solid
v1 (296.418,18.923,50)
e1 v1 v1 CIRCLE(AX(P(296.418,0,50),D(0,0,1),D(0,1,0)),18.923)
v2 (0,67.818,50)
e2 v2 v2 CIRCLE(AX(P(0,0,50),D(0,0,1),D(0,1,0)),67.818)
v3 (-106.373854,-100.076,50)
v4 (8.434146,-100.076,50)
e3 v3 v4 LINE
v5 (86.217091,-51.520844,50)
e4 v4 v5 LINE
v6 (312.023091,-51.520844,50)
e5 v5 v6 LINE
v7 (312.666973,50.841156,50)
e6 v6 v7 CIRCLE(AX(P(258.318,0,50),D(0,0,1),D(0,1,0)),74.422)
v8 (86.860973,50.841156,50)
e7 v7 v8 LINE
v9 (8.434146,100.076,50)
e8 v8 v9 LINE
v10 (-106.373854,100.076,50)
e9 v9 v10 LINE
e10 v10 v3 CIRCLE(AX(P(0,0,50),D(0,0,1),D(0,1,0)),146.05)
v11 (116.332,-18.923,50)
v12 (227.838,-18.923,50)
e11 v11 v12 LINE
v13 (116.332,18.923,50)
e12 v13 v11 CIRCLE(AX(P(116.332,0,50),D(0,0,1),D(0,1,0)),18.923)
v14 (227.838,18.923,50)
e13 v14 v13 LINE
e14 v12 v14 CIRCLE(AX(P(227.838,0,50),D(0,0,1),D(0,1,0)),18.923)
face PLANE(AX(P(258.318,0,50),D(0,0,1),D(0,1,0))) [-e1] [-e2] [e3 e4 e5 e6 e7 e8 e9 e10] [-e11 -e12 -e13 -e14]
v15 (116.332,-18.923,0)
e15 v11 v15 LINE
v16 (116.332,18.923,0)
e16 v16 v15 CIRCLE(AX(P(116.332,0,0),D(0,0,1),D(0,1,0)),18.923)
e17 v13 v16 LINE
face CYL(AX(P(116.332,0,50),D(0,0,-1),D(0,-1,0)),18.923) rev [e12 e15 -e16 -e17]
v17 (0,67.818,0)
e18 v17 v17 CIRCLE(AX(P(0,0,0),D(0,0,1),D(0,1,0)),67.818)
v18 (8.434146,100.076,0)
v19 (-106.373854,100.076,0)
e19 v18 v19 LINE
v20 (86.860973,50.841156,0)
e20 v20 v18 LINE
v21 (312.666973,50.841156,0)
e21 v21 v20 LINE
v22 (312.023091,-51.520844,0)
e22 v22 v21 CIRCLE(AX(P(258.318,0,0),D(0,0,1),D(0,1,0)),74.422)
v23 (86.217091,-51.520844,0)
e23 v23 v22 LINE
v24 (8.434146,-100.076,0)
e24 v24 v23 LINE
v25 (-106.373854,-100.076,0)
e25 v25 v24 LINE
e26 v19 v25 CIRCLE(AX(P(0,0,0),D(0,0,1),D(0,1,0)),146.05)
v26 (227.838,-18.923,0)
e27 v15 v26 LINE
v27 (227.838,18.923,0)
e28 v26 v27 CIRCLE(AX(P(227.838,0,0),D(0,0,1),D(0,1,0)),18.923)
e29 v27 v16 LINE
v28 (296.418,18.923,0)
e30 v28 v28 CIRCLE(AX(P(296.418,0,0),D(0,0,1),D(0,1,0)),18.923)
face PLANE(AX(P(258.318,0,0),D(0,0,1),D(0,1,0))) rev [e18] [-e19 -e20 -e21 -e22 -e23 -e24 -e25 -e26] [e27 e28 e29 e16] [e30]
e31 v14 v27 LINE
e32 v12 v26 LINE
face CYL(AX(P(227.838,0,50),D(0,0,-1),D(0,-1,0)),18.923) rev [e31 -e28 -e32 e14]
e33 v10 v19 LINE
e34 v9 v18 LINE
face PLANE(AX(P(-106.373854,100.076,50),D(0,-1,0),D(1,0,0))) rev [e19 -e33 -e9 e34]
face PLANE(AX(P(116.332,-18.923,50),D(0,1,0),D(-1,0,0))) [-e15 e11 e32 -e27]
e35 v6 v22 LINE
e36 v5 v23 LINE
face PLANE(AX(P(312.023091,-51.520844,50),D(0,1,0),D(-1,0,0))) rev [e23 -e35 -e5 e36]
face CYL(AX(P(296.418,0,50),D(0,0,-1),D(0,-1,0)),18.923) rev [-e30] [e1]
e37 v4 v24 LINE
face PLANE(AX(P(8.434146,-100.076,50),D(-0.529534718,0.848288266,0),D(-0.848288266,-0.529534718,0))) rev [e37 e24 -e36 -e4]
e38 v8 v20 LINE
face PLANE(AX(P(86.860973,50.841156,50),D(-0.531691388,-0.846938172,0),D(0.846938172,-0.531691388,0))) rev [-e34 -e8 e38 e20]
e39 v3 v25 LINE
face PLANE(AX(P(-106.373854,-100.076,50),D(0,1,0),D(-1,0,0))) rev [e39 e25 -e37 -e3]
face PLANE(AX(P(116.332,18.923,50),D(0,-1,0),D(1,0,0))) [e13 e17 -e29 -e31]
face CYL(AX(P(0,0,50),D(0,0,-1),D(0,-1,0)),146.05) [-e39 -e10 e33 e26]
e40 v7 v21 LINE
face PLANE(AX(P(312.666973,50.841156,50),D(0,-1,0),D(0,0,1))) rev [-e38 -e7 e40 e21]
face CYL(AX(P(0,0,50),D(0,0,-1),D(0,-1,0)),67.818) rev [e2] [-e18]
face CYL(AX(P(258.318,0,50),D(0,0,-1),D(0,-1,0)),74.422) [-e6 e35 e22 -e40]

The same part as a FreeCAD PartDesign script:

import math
import FreeCAD as App
import Part
import Sketcher

V = App.Vector
Q = App.Units.Quantity

doc = App.newDocument("Part")
body = doc.addObject("PartDesign::Body", "Body")

sketch1 = body.newObject("Sketcher::SketchObject", "Sketch")
sketch1.AttachmentSupport = (doc.getObject("XY_Plane"), [""])
sketch1.MapMode = "FlatFace"
sketch1.addGeometry([
    Part.LineSegment(V(51, -87, 0), V(100, -8, 0)),
    Part.LineSegment(V(100, -8, 0), V(100, 106, 0)),
    Part.ArcOfCircle(Part.Circle(V(0, 0, 0), V(0, 0, 1), 146), math.radians(47), math.radians(133)),
    Part.LineSegment(V(-100, 106, 0), V(-100, -8, 0)),
    Part.LineSegment(V(-100, -8, 0), V(-52, -86, 0)),
    Part.LineSegment(V(-52, -86, 0), V(-52, -312, 0)),
    Part.ArcOfCircle(Part.Circle(V(0, -258, 0), V(0, 0, 1), 74), math.radians(-134), math.radians(-47)),
    Part.LineSegment(V(51, -313, 0), V(51, -87, 0)),
    Part.Circle(V(0, -296, 0), V(0, 0, 1), 19),
    Part.ArcOfCircle(Part.Circle(V(0, -116, 0), V(0, 0, 1), 19), math.radians(0), math.radians(180)),
    Part.LineSegment(V(19, -116, 0), V(19, -228, 0)),
    Part.ArcOfCircle(Part.Circle(V(0, -228, 0), V(0, 0, 1), 19), math.radians(180), math.radians(360)),
    Part.LineSegment(V(-19, -228, 0), V(-19, -116, 0)),
    Part.Circle(V(0, 0, 0), V(0, 0, 1), 68),
], False)
sketch1.addConstraint([
    Sketcher.Constraint("Coincident", 0, 2, 1, 1),
    Sketcher.Constraint("Coincident", 1, 2, 2, 1),
    Sketcher.Constraint("Coincident", 2, 2, 3, 1),
    Sketcher.Constraint("Coincident", 3, 2, 4, 1),
    Sketcher.Constraint("Coincident", 4, 2, 5, 1),
    Sketcher.Constraint("Coincident", 5, 2, 6, 1),
    Sketcher.Constraint("Coincident", 6, 2, 7, 1),
    Sketcher.Constraint("Coincident", 7, 2, 0, 1),
    Sketcher.Constraint("Tangent", 9, 1, 10, 1),
    Sketcher.Constraint("Tangent", 10, 2, 11, 2),
    Sketcher.Constraint("Tangent", 11, 1, 12, 1),
    Sketcher.Constraint("Tangent", 12, 2, 9, 2),
    Sketcher.Constraint("Vertical", 1),
    Sketcher.Constraint("Vertical", 3),
    Sketcher.Constraint("Vertical", 5),
    Sketcher.Constraint("Vertical", 7),
    Sketcher.Constraint("Vertical", 10),
    Sketcher.Constraint("Vertical", 12),
    Sketcher.Constraint("Coincident", 2, 3, -1, 1),
    Sketcher.Constraint("Coincident", 13, 3, -1, 1),
    Sketcher.Constraint("Equal", 8, 9),
    Sketcher.Constraint("Symmetric", 0, 2, 3, 2, -2),
    Sketcher.Constraint("PointOnObject", 6, 3, -2),
    Sketcher.Constraint("PointOnObject", 8, 3, -2),
    Sketcher.Constraint("PointOnObject", 9, 3, -2),
    Sketcher.Constraint("Equal", 5, 7),
    Sketcher.Constraint("Diameter", 8, Q("1.49 in")),
    Sketcher.Constraint("Diameter", 13, Q("5.34 in")),
    Sketcher.Constraint("Radius", 2, Q("5.75 in")),
    Sketcher.Constraint("Radius", 6, Q("2.93 in")),
    Sketcher.Constraint("DistanceY", 1, 1, 1, 2, Q("4.52 in")),
    Sketcher.Constraint("DistanceY", 5, 2, 5, 1, Q("8.89 in")),
    Sketcher.Constraint("DistanceY", 10, 2, 10, 1, Q("4.39 in")),
    Sketcher.Constraint("DistanceY", 8, 3, 6, 3, Q("1.5 in")),
    Sketcher.Constraint("DistanceY", 6, 3, 11, 3, Q("1.2 in")),
    Sketcher.Constraint("Distance", 4, Q("3.61 in")),
    Sketcher.Constraint("DistanceY", 6, 3, -1, 1, Q("10.17 in")),
    Sketcher.Constraint("DistanceX", -1, 1, 0, 2, Q("3.94 in")),
    Sketcher.Constraint("DistanceX", 5, 2, 6, 2, Q("4.03 in")),
])
pad1 = body.newObject("PartDesign::Pad", "Pad")
pad1.Profile = sketch1
pad1.Length = 50
body2 = doc.addObject("PartDesign::Body", "Body001")
doc.recompute()

body.Placement = App.Placement(V(0, 0, 0), App.Rotation(V(0, 0, 1), 90))
boolean = body2.newObject("PartDesign::Boolean", "Boolean")
boolean.Type = "Fuse"
boolean.addObjects([body])

doc.recompute()
